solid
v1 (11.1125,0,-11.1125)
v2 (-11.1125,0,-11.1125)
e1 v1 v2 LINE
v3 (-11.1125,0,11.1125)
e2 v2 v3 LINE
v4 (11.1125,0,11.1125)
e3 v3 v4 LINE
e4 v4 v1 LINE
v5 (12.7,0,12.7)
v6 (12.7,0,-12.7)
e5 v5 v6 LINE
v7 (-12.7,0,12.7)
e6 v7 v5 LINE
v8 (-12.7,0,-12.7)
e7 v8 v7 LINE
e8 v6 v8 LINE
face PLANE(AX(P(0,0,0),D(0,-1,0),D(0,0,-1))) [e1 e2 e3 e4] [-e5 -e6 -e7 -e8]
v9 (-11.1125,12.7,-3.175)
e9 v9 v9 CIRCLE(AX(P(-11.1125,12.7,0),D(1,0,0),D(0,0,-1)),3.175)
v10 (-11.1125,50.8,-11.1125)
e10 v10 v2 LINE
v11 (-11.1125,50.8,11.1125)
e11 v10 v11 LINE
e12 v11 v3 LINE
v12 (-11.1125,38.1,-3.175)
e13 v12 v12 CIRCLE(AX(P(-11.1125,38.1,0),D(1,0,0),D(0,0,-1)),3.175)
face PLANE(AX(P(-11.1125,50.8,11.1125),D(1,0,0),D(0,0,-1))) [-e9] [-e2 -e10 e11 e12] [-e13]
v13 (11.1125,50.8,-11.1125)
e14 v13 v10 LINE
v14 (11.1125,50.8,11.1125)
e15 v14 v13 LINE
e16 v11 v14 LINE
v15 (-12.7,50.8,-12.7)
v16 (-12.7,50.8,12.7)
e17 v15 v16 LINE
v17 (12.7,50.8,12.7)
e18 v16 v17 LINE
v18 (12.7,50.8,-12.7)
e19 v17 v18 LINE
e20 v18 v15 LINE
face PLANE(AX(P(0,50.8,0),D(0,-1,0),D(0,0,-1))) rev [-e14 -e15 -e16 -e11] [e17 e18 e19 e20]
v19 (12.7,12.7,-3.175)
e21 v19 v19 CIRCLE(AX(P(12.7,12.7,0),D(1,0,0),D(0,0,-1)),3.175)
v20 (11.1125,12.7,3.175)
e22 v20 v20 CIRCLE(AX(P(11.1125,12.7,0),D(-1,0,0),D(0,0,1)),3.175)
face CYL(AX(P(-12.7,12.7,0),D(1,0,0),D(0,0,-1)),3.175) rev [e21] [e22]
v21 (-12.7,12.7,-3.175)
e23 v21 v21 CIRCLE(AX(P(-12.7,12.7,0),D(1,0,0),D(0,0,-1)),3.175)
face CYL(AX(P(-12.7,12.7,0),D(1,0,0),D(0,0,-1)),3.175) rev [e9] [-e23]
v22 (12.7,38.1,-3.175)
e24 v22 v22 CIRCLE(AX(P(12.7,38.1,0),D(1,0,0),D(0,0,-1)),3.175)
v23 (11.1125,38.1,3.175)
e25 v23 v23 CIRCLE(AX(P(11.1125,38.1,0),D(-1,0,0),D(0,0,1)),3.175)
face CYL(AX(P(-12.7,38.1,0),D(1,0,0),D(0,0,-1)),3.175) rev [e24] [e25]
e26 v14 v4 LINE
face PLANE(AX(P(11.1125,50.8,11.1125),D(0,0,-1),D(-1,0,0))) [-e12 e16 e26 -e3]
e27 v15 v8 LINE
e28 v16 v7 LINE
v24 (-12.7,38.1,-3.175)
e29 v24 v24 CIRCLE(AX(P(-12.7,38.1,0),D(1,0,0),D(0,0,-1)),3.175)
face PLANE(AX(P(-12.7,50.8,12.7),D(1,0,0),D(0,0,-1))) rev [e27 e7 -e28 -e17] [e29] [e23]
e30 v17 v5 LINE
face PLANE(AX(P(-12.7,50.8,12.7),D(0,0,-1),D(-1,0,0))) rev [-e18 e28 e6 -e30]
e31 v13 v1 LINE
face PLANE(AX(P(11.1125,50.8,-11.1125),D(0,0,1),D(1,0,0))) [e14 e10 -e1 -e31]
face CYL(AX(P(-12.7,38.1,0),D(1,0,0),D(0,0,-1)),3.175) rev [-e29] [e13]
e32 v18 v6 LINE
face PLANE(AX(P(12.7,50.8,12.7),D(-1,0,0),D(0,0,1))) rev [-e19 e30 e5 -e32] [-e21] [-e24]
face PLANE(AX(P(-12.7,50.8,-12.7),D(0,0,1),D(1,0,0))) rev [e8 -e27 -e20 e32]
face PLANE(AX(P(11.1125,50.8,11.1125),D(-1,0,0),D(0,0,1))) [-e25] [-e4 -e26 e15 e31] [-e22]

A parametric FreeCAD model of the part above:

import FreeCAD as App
import Part
import Sketcher
from FreeCAD import Vector
Q = App.Units.Quantity

doc = App.newDocument("Part")
body = doc.addObject("PartDesign::Body", "Body")

sketch1 = doc.addObject("Sketcher::SketchObject", "Sketch")
body.addObject(sketch1)
sketch1.AttachmentSupport = (doc.XZ_Plane, [""])
sketch1.MapMode = "FlatFace"
sketch1.addGeometry([
    Part.LineSegment(Vector(-12.7, -12.7, 0), Vector(-12.7, 12.7, 0)),
    Part.LineSegment(Vector(-12.7, 12.7, 0), Vector(12.7, 12.7, 0)),
    Part.LineSegment(Vector(12.7, 12.7, 0), Vector(12.7, -12.7, 0)),
    Part.LineSegment(Vector(12.7, -12.7, 0), Vector(-12.7, -12.7, 0)),
    Part.LineSegment(Vector(11.1125, 11.1125, 0), Vector(-11.1125, 11.1125, 0)),
    Part.LineSegment(Vector(-11.1125, 11.1125, 0), Vector(-11.1125, -11.1125, 0)),
    Part.LineSegment(Vector(-11.1125, -11.1125, 0), Vector(11.1125, -11.1125, 0)),
    Part.LineSegment(Vector(11.1125, -11.1125, 0), Vector(11.1125, 11.1125, 0)),
], False)
sketch1.addConstraint([
    Sketcher.Constraint("Coincident", 0, 2, 1, 1),
    Sketcher.Constraint("Coincident", 1, 2, 2, 1),
    Sketcher.Constraint("Coincident", 2, 2, 3, 1),
    Sketcher.Constraint("Coincident", 3, 2, 0, 1),
    Sketcher.Constraint("Coincident", 4, 2, 5, 1),
    Sketcher.Constraint("Coincident", 5, 2, 6, 1),
    Sketcher.Constraint("Coincident", 6, 2, 7, 1),
    Sketcher.Constraint("Coincident", 7, 2, 4, 1),
    Sketcher.Constraint("Vertical", 0),
    Sketcher.Constraint("Horizontal", 1),
    Sketcher.Constraint("Vertical", 2),
    Sketcher.Constraint("Horizontal", 3),
    Sketcher.Constraint("Horizontal", 4),
    Sketcher.Constraint("Vertical", 5),
    Sketcher.Constraint("Horizontal", 6),
    Sketcher.Constraint("Vertical", 7),
    Sketcher.Constraint("Symmetric", 0, 2, 2, 2, -1, 1),
    Sketcher.Constraint("Symmetric", 4, 2, 6, 2, -1, 1),
    Sketcher.Constraint("Equal", 3, 0),
    Sketcher.Constraint("Equal", 6, 5),
    Sketcher.Constraint("DistanceX", 1, 1, 1, 2, Q("1 in")),
    Sketcher.Constraint("DistanceX", 4, 2, 4, 1, Q("0.875 in")),
])
pad1 = doc.addObject("PartDesign::Pad", "Pad")
body.addObject(pad1)
pad1.Profile = sketch1
pad1.Length = Q("2 in")
pad1.Reversed = True

sketch2 = doc.addObject("Sketcher::SketchObject", "Sketch001")
body.addObject(sketch2)
sketch2.AttachmentSupport = (doc.YZ_Plane, [""])
sketch2.MapMode = "FlatFace"
sketch2.AttachmentOffset = App.Placement(Vector(0, 0, 0.5 * 25.4), App.Rotation())
sketch2.addGeometry([
    Part.Circle(Vector(38.1, 0, 0), Vector(0, 0, 1), 3.175),
    Part.Circle(Vector(12.7, 0, 0), Vector(0, 0, 1), 3.175),
], False)
sketch2.addConstraint([
    Sketcher.Constraint("Equal", 0, 1),
    Sketcher.Constraint("PointOnObject", 0, 3, -1),
    Sketcher.Constraint("PointOnObject", 1, 3, -1),
    Sketcher.Constraint("Diameter", 0, Q("0.25 in")),
    Sketcher.Constraint("DistanceX", 1, 3, 0, 3, Q("1 in")),
    Sketcher.Constraint("DistanceX", -1, 1, 0, 3, Q("1.5 in")),
])
pocket1 = doc.addObject("PartDesign::Pocket", "Pocket")
body.addObject(pocket1)
pocket1.Profile = sketch2
pocket1.Type = "ThroughAll"

doc.recompute()
